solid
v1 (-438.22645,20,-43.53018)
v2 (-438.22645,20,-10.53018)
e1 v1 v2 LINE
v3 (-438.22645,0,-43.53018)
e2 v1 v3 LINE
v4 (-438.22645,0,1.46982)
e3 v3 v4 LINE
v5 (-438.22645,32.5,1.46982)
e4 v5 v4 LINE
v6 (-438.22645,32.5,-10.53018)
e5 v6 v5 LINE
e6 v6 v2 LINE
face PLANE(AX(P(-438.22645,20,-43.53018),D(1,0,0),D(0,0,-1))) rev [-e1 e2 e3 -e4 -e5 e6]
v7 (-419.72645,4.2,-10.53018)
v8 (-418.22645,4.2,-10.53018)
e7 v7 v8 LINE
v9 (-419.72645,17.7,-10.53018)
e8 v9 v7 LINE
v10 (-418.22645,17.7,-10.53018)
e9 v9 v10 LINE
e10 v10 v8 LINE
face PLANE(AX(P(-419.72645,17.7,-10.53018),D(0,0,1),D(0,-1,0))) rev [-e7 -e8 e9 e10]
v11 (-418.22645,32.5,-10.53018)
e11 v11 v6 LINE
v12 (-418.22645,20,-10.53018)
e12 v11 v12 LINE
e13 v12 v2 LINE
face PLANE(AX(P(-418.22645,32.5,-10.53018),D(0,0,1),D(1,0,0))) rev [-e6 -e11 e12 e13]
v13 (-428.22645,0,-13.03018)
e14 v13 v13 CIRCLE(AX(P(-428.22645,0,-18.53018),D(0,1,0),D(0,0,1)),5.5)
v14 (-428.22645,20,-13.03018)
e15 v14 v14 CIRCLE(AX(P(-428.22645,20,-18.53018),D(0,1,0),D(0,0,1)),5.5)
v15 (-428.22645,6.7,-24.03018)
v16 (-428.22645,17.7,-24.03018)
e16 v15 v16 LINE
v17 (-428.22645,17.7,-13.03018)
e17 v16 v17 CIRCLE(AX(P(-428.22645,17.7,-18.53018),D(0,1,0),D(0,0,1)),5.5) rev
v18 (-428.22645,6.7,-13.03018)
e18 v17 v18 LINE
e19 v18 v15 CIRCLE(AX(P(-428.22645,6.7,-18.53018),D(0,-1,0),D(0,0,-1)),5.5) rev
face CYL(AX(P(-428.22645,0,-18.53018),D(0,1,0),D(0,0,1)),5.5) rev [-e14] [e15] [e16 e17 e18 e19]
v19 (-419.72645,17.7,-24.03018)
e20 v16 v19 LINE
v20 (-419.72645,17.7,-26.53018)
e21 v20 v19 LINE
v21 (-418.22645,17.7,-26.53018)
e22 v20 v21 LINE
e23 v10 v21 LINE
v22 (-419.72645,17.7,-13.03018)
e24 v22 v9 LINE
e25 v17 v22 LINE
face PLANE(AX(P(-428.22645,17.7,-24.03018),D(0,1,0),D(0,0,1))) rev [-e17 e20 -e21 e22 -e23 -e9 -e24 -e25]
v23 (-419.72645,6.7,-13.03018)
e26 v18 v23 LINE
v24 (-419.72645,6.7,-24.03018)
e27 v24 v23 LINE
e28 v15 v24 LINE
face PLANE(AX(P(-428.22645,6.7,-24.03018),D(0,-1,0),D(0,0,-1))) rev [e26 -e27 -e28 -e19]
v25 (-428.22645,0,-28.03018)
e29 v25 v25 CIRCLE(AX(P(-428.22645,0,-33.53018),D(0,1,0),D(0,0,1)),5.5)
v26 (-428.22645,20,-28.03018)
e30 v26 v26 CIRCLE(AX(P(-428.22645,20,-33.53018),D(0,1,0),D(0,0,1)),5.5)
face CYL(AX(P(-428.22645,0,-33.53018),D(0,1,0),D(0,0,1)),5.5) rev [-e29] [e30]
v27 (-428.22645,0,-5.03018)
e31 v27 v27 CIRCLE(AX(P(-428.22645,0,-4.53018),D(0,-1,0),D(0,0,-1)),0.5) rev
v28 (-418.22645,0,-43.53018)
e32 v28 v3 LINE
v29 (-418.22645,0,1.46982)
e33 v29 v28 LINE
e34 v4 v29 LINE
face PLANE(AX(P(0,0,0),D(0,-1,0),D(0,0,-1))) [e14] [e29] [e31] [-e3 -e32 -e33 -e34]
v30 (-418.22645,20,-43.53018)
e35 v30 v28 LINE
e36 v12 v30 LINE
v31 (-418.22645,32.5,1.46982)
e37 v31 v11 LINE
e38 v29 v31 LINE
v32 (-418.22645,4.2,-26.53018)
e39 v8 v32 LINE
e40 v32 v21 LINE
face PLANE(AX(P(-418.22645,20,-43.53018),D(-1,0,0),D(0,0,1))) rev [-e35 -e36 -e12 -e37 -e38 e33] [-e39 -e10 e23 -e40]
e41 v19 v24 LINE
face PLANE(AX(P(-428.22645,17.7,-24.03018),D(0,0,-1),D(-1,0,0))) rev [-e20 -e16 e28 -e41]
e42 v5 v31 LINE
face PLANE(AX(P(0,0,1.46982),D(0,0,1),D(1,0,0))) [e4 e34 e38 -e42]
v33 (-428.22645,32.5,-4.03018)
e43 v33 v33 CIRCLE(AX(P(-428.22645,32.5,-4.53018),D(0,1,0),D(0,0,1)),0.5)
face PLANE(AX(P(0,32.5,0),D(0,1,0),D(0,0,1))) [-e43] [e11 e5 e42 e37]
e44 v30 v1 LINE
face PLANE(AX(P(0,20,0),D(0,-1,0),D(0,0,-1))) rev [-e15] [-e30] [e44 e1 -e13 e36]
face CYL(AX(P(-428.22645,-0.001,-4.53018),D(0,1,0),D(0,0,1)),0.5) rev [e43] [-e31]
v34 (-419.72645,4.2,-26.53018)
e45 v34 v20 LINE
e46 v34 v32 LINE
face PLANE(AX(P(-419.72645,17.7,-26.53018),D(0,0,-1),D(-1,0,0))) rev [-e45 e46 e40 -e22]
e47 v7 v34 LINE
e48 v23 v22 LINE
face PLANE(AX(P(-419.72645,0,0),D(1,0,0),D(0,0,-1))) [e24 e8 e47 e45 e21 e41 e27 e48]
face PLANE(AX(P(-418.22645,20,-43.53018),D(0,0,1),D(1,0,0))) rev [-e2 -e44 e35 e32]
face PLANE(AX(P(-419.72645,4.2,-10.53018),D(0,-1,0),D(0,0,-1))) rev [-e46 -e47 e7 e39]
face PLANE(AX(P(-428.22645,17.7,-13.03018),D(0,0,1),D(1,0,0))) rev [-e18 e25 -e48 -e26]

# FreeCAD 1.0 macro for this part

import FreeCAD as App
import Part
import Sketcher
Q = App.Units.Quantity


def add_polygon(sketch, points):
    """Adds a closed chain of lines whose ends are joined by coincident constraints."""
    first, n = sketch.GeometryCount, len(points)
    for a, b in zip(points, points[1:] + points[:1]):
        sketch.addGeometry(Part.LineSegment(App.Vector(*a, 0), App.Vector(*b, 0)), False)
    for i in range(n):
        sketch.addConstraint(Sketcher.Constraint("Coincident", first + i, 2, first + (i + 1) % n, 1))

doc = App.newDocument("Part")
body = doc.addObject("PartDesign::Body", "Body")

# Sketch on XZ plane
sketch1 = doc.addObject("Sketcher::SketchObject", "Sketch")
body.addObject(sketch1)
sketch1.AttachmentSupport = (doc.XZ_Plane, [""])
sketch1.MapMode = "FlatFace"
add_polygon(sketch1, [(-438, -44), (-438, -9), (-418, -9), (-418, -44)])  # lines 0-3
sketch1.addGeometry(Part.Circle(App.Vector(-428, -19, 0), App.Vector(0, 0, 1), 5), False)  # 4
sketch1.addGeometry(Part.Circle(App.Vector(-428, -34, 0), App.Vector(0, 0, 1), 5), False)  # 5
sketch1.addConstraint([
    Sketcher.Constraint("Vertical", 0),
    Sketcher.Constraint("Horizontal", 1),
    Sketcher.Constraint("Vertical", 2),
    Sketcher.Constraint("Horizontal", 3),
    Sketcher.Constraint("Equal", 4, 5),
    Sketcher.Constraint("Vertical", 4, 3, 5, 3),
    Sketcher.Constraint("Diameter", 4, Q("10 mm")),
    Sketcher.Constraint("DistanceX", 1, 1, 1, 2, Q("20 mm")),
    Sketcher.Constraint("DistanceY", 0, 1, 0, 2, Q("35 mm")),
    Sketcher.Constraint("DistanceY", 5, 3, 4, 3, Q("15 mm")),
    Sketcher.Constraint("DistanceX", 0, 2, 4, 3, Q("10 mm")),
    Sketcher.Constraint("DistanceY", 4, 3, 0, 2, Q("10 mm")),
    Sketcher.Constraint("DistanceX", 4, 3, -1, 1, Q("428.22645 mm")),
    Sketcher.Constraint("DistanceY", 4, 3, -1, 1, Q("18.53018 mm")),
])
pad1 = doc.addObject("PartDesign::Pad", "Pad")
body.addObject(pad1)
pad1.Profile = sketch1
pad1.Length = 20
pad1.Reversed = True

# Sketch on YZ plane
sketch2 = doc.addObject("Sketcher::SketchObject", "Sketch001")
body.addObject(sketch2)
sketch2.AttachmentSupport = (doc.YZ_Plane, [""])
sketch2.MapMode = "FlatFace"
sketch2.AttachmentOffset = App.Placement(App.Vector(0, 0, -418.22645), App.Rotation())
sketch2.addGeometry(Part.Circle(App.Vector(12.2, -18.5, 0), App.Vector(0, 0, 1), 2), False)
sketch2.addConstraint([
    Sketcher.Constraint("Diameter", 0, Q("4 mm")),
    Sketcher.Constraint("DistanceX", -1, 1, 0, 3, Q("12.2 mm")),
    Sketcher.Constraint("DistanceY", 0, 3, -1, 1, Q("18.53018 mm")),
])
pad2 = doc.addObject("PartDesign::Pad", "Pad001")
body.addObject(pad2)
pad2.Profile = sketch2
pad2.Length = 8

# Sketch on XY plane
sketch3 = doc.addObject("Sketcher::SketchObject", "Sketch002")
body.addObject(sketch3)
sketch3.AttachmentSupport = (doc.XY_Plane, [""])
sketch3.MapMode = "FlatFace"
sketch3.AttachmentOffset = App.Placement(App.Vector(0, 0, -8.53018), App.Rotation())
add_polygon(sketch3, [(-438, 20), (-438, 0), (-418, 0), (-418, 20)])  # lines 0-3
sketch3.addConstraint([
    Sketcher.Constraint("Vertical", 0),
    Sketcher.Constraint("Horizontal", 1),
    Sketcher.Constraint("Vertical", 2),
    Sketcher.Constraint("Horizontal", 3),
    Sketcher.Constraint("PointOnObject", 0, 2, -1),
    Sketcher.Constraint("Equal", 3, 0),
    Sketcher.Constraint("DistanceX", 1, 1, 1, 2, Q("20 mm")),
    Sketcher.Constraint("DistanceX", 0, 2, -1, 1, Q("438.22645 mm")),
])
pad3 = doc.addObject("PartDesign::Pad", "Pad002")
body.addObject(pad3)
pad3.Profile = sketch3
pad3.Length = 10

# Sketch on XZ plane
sketch4 = doc.addObject("Sketcher::SketchObject", "Sketch003")
body.addObject(sketch4)
sketch4.AttachmentSupport = (doc.XZ_Plane, [""])
sketch4.MapMode = "FlatFace"
sketch4.AttachmentOffset = App.Placement(App.Vector(0, 0, -20), App.Rotation())
sketch4.addGeometry(Part.Circle(App.Vector(-428.2, -4.5, 0), App.Vector(0, 0, 1), 0.5), False)
sketch4.addConstraint([
    Sketcher.Constraint("Diameter", 0, Q("1 mm")),
    Sketcher.Constraint("DistanceX", 0, 3, -1, 1, Q("428.22645 mm")),
    Sketcher.Constraint("DistanceY", 0, 3, -1, 1, Q("4.53018 mm")),
])
pocket1 = doc.addObject("PartDesign::Pocket", "Pocket")
body.addObject(pocket1)
pocket1.Profile = sketch4
pocket1.Type = "UpToFirst"
pocket1.Reversed = True

# Sketch on XZ plane
sketch5 = doc.addObject("Sketcher::SketchObject", "Sketch004")
body.addObject(sketch5)
sketch5.AttachmentSupport = (doc.XZ_Plane, [""])
sketch5.MapMode = "FlatFace"
sketch5.AttachmentOffset = App.Placement(App.Vector(0, 0, -32.5), App.Rotation())
add_polygon(sketch5, [(-438.2, -10.5), (-438.2, 1.5), (-418.2, 1.5), (-418.2, -10.5)])  # lines 0-3
sketch5.addGeometry(Part.Circle(App.Vector(-428.2, -4.5, 0), App.Vector(0, 0, 1), 0.5), False)  # 4
sketch5.addConstraint([
    Sketcher.Constraint("Vertical", 0),
    Sketcher.Constraint("Horizontal", 1),
    Sketcher.Constraint("Vertical", 2),
    Sketcher.Constraint("Horizontal", 3),
    Sketcher.Constraint("Diameter", 4, Q("1 mm")),
    Sketcher.Constraint("DistanceX", 1, 1, 1, 2, Q("20 mm")),
    Sketcher.Constraint("DistanceY", 0, 1, 0, 2, Q("12 mm")),
    Sketcher.Constraint("DistanceX", 0, 2, 4, 3, Q("10 mm")),
    Sketcher.Constraint("DistanceY", 4, 3, 0, 2, Q("6 mm")),
    Sketcher.Constraint("DistanceX", 4, 3, -1, 1, Q("428.22645 mm")),
    Sketcher.Constraint("DistanceY", 4, 3, -1, 1, Q("4.53018 mm")),
])
pad4 = doc.addObject("PartDesign::Pad", "Pad003")
body.addObject(pad4)
pad4.Profile = sketch5
pad4.Length = 12.5

# Sketch on XZ plane
sketch6 = doc.addObject("Sketcher::SketchObject", "Sketch005")
body.addObject(sketch6)
sketch6.AttachmentSupport = (doc.XZ_Plane, [""])
sketch6.MapMode = "FlatFace"
sketch6.AttachmentOffset = App.Placement(App.Vector(0, 0, -20), App.Rotation())
sketch6.addGeometry([
    Part.Circle(App.Vector(-428, -19, 0), App.Vector(0, 0, 1), 6),
    Part.Circle(App.Vector(-428, -34, 0), App.Vector(0, 0, 1), 6),
], False)
sketch6.addConstraint([
    Sketcher.Constraint("Equal", 0, 1),
    Sketcher.Constraint("Vertical", 0, 3, 1, 3),
    Sketcher.Constraint("Diameter", 0, Q("11 mm")),
    Sketcher.Constraint("DistanceY", 1, 3, 0, 3, Q("15 mm")),
    Sketcher.Constraint("DistanceX", 0, 3, -1, 1, Q("428.22645 mm")),
    Sketcher.Constraint("DistanceY", 0, 3, -1, 1, Q("18.53018 mm")),
])
pocket2 = doc.addObject("PartDesign::Pocket", "Pocket001")
body.addObject(pocket2)
pocket2.Profile = sketch6
pocket2.Type = "ThroughAll"
pocket2.Reversed = True

# Sketch on YZ plane
sketch7 = doc.addObject("Sketcher::SketchObject", "Sketch006")
body.addObject(sketch7)
sketch7.AttachmentSupport = (doc.YZ_Plane, [""])
sketch7.MapMode = "FlatFace"
sketch7.AttachmentOffset = App.Placement(App.Vector(0, 0, -410.22645), App.Rotation())
add_polygon(sketch7, [(18, -13), (7, -13), (7, -24), (18, -24)])  # lines 0-3
sketch7.addConstraint([
    Sketcher.Constraint("Horizontal", 0),
    Sketcher.Constraint("Vertical", 1),
    Sketcher.Constraint("Horizontal", 2),
    Sketcher.Constraint("Vertical", 3),
    Sketcher.Constraint("Equal", 2, 1),
    Sketcher.Constraint("DistanceX", 0, 2, 0, 1, Q("11 mm")),
    Sketcher.Constraint("DistanceX", -1, 1, 0, 2, Q("6.7 mm")),
    Sketcher.Constraint("DistanceY", 0, 2, -1, 1, Q("13.03018 mm")),
])
pocket3 = doc.addObject("PartDesign::Pocket", "Pocket002")
body.addObject(pocket3)
pocket3.Profile = sketch7
pocket3.Length = 18

# Sketch on YZ plane
sketch8 = doc.addObject("Sketcher::SketchObject", "Sketch007")
body.addObject(sketch8)
sketch8.AttachmentSupport = (doc.YZ_Plane, [""])
sketch8.MapMode = "FlatFace"
sketch8.AttachmentOffset = App.Placement(App.Vector(0, 0, -418.22645), App.Rotation())
add_polygon(sketch8, [(18, -11), (4, -11), (4, -27), (18, -27)])  # lines 0-3
sketch8.addConstraint([
    Sketcher.Constraint("Horizontal", 0),
    Sketcher.Constraint("Vertical", 1),
    Sketcher.Constraint("Horizontal", 2),
    Sketcher.Constraint("Vertical", 3),
    Sketcher.Constraint("DistanceY", 1, 2, 1, 1, Q("16 mm")),
    Sketcher.Constraint("DistanceX", 0, 2, 0, 1, Q("13.5 mm")),
    Sketcher.Constraint("DistanceX", -1, 1, 0, 2, Q("4.2 mm")),
    Sketcher.Constraint("DistanceY", 0, 2, -1, 1, Q("10.53018 mm")),
])
pocket4 = doc.addObject("PartDesign::Pocket", "Pocket003")
body.addObject(pocket4)
pocket4.Profile = sketch8
pocket4.Length = 1.5

doc.recompute()
